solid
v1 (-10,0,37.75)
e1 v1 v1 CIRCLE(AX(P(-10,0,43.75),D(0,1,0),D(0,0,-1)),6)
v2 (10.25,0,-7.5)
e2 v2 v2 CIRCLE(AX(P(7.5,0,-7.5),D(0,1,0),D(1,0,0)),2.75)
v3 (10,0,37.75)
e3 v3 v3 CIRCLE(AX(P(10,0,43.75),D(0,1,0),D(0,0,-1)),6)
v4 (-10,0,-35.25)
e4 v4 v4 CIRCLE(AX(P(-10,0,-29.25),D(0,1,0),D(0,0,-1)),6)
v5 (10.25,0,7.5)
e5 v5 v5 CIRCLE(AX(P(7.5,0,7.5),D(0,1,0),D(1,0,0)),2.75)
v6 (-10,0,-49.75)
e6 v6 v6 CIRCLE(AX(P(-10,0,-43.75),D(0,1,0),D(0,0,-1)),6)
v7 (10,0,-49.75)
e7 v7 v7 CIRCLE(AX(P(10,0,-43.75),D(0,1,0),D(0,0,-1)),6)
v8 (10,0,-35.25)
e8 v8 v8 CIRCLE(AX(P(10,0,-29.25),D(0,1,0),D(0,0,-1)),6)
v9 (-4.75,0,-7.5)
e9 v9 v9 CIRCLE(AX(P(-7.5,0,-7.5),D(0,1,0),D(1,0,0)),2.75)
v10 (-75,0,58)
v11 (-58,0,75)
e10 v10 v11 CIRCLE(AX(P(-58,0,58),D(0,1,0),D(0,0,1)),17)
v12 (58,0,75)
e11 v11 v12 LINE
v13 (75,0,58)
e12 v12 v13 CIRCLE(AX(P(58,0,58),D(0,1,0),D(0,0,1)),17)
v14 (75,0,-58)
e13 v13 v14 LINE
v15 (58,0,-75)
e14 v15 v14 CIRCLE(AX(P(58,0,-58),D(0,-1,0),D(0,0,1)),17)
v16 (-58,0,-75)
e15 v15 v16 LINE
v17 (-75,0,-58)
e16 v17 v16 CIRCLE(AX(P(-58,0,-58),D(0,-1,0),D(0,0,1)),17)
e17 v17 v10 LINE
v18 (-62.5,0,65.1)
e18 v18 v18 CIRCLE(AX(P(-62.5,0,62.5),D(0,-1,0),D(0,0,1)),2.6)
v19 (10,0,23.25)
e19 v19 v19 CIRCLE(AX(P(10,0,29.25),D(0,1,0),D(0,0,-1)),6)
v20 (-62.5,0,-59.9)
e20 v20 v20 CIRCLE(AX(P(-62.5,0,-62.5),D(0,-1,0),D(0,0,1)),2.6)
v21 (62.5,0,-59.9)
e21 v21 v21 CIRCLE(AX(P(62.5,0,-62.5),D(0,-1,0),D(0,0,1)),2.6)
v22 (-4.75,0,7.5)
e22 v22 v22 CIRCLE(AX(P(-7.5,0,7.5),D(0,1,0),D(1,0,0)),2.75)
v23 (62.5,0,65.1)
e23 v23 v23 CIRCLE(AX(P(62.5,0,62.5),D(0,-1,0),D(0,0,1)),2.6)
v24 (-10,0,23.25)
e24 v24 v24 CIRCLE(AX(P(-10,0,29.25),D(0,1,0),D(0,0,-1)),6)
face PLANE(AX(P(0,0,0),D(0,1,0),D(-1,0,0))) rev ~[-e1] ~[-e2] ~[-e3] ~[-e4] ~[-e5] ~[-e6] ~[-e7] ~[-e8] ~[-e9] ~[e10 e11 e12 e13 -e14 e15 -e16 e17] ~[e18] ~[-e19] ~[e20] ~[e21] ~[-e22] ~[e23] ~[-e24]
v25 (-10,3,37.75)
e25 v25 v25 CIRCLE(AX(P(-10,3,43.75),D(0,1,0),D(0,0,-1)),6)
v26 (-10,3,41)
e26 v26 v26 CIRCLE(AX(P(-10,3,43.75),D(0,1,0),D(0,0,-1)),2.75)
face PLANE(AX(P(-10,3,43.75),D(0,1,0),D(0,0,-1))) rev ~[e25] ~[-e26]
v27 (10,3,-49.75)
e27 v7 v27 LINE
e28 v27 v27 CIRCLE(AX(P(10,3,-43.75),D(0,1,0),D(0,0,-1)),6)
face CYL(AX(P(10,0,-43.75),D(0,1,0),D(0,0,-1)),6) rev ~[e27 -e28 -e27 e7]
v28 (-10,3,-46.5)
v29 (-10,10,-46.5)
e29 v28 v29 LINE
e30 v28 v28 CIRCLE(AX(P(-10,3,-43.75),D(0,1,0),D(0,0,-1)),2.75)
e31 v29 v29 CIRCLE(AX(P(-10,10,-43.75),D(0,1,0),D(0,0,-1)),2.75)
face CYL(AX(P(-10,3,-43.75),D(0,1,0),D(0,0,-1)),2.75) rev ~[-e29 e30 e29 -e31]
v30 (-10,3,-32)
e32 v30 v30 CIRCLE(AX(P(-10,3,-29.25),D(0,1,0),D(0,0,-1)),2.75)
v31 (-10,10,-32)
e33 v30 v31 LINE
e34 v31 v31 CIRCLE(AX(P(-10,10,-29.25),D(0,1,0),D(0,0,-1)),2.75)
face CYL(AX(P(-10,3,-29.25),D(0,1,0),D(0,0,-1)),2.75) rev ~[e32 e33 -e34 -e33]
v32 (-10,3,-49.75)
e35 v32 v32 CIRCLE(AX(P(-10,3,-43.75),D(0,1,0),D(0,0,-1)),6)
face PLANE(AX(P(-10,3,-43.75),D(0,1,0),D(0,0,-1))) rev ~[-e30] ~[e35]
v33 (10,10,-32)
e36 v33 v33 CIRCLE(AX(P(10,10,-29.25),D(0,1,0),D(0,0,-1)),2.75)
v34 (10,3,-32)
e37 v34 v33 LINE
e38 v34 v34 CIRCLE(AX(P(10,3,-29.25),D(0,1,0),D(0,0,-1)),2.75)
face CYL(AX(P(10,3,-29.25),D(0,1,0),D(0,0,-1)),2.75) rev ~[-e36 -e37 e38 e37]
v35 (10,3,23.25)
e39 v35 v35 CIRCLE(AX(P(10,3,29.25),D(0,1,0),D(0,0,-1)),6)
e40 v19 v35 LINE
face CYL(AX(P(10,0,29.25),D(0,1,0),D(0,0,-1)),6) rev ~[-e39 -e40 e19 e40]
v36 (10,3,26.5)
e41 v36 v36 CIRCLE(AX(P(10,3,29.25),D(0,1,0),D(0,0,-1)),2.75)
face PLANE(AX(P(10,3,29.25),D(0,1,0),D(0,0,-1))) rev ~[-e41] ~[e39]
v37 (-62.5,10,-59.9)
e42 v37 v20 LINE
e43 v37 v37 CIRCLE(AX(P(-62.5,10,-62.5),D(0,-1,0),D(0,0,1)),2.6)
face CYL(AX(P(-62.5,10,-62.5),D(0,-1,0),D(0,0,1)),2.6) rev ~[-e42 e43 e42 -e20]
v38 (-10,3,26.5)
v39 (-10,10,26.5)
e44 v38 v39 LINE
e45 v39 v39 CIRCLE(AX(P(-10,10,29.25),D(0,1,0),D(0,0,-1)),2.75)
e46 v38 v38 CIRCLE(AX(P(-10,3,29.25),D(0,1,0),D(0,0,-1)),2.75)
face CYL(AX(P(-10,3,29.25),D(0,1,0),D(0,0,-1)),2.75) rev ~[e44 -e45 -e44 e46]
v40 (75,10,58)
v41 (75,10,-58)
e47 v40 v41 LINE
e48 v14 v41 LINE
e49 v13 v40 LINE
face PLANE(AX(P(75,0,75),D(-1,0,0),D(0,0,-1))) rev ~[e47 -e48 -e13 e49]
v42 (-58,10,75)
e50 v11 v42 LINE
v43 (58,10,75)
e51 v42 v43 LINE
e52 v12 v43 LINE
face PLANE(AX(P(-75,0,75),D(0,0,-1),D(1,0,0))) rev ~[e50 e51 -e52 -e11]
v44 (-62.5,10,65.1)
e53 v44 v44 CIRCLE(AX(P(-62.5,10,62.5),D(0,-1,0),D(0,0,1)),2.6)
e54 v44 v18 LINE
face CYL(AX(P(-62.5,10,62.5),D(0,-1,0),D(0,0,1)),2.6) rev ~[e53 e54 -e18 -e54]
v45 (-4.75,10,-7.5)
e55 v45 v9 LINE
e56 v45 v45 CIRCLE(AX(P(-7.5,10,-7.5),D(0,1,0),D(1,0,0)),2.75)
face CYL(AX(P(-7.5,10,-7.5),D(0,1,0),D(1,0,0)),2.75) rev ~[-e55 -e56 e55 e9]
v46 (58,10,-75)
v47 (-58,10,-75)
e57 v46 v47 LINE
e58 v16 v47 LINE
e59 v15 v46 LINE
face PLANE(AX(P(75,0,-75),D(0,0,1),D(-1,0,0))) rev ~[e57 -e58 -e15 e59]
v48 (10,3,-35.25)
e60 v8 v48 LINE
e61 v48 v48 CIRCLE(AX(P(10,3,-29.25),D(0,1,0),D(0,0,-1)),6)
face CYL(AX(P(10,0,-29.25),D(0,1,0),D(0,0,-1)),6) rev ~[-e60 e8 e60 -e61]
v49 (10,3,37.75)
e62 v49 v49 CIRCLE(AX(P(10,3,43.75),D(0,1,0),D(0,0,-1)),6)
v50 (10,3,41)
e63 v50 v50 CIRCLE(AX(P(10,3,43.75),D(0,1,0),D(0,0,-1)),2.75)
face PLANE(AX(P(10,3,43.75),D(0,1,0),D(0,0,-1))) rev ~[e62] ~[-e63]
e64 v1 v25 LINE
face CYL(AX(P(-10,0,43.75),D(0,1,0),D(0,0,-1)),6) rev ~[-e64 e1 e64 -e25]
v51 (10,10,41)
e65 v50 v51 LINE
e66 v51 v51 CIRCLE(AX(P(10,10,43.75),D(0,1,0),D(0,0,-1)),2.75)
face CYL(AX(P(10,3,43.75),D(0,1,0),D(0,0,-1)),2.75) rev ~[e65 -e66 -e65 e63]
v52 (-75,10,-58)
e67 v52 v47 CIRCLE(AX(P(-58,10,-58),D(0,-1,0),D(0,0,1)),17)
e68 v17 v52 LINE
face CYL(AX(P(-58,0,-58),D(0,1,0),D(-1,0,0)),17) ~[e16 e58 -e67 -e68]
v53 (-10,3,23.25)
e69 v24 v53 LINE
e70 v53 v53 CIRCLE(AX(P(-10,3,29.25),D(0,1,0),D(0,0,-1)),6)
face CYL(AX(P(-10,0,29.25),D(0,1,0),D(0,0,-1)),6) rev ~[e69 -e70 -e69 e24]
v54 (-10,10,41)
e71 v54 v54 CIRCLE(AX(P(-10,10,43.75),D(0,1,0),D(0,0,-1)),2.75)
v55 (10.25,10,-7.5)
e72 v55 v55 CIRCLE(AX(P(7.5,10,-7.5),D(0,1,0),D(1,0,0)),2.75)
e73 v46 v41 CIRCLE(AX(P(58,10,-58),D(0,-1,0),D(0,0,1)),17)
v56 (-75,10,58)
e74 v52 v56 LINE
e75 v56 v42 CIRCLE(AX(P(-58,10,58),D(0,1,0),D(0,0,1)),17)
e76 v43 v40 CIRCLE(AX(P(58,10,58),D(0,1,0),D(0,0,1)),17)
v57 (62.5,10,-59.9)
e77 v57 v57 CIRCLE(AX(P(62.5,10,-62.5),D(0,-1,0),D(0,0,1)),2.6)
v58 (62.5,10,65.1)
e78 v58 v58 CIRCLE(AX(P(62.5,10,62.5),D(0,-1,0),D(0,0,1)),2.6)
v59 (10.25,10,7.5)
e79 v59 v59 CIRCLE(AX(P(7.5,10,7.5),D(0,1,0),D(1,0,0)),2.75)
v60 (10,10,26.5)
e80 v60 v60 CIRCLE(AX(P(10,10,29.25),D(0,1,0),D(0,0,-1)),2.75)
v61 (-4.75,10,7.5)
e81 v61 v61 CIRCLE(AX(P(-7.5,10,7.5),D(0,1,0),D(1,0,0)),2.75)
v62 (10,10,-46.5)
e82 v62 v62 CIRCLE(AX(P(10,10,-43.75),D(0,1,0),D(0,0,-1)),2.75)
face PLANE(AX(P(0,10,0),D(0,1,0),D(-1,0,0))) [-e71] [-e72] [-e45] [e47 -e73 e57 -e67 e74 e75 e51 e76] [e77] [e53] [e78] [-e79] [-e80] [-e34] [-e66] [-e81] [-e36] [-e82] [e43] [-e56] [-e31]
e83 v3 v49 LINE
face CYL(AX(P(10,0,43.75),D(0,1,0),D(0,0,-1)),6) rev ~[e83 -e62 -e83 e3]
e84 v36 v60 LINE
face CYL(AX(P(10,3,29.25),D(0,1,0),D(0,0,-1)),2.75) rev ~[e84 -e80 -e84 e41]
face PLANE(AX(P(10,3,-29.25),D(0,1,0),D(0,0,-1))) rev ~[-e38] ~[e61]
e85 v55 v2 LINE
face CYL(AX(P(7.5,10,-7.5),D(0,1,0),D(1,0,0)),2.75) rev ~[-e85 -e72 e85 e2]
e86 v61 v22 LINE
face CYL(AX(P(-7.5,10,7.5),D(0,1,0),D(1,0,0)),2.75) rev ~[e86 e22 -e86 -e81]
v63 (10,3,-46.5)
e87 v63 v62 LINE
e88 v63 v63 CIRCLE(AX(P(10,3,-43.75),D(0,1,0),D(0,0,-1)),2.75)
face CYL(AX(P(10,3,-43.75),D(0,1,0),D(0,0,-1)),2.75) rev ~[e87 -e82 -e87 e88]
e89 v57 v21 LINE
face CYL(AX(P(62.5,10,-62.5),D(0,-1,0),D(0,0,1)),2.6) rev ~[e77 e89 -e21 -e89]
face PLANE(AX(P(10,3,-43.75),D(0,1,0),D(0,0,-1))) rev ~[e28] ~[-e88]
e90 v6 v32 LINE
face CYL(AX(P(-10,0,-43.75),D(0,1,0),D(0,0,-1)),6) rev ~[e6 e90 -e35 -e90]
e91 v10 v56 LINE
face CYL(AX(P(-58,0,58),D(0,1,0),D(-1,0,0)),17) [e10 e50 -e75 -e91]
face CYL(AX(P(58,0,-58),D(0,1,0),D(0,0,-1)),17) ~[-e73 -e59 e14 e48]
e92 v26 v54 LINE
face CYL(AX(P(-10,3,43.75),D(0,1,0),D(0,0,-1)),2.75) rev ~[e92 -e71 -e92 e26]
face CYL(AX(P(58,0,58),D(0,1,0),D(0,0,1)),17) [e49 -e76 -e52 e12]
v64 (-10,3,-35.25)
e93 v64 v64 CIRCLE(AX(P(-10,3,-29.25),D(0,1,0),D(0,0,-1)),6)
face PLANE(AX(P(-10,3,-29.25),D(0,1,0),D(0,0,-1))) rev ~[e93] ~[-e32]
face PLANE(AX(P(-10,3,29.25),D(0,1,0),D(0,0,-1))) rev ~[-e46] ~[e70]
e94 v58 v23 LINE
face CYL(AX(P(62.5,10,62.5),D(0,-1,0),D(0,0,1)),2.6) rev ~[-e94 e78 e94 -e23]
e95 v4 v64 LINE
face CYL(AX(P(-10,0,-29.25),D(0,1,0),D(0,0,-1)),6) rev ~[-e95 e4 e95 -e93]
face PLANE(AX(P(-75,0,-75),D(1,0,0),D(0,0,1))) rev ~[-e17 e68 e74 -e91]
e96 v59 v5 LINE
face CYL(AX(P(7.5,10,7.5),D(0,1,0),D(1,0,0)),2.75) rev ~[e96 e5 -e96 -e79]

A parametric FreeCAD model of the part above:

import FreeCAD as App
import Part
import Sketcher

V = App.Vector


def edges_at(feature, points):
    """Names of the edges that pass closest to the given points."""
    edges = feature.Shape.Edges
    near = lambda p: min(range(len(edges)), key=lambda i: edges[i].distToShape(Part.Vertex(*p))[0])
    return sorted({f"Edge{near(p) + 1}" for p in points})

doc = App.newDocument("Part")
params = doc.addObject("Spreadsheet::Sheet", "Params")
for row, (alias, value) in enumerate([
    ("sketch1_width", "150 mm"),
    ("pad1_length", "10 mm"),
    ("sketch2_diameter", "5 mm"),
    ("fillet_radius", "17 mm"),
    ("sketch3_diameter", "5.5 mm"),
    ("hole_diameter", "5.5 mm"),
    ("hole_cbore_diameter", "12 mm"),
    ("hole_cbore_depth", "3 mm"),
    ("sketch4_diameter", "5.2 mm"),
    ("hole2_diameter", "5.2 mm"),
    ("sketch5_diameter", "5.5 mm"),
], start=1):
    params.set(f"A{row}", alias)
    params.set(f"B{row}", "=" + value)
    params.setAlias(f"B{row}", alias)

body = doc.addObject("PartDesign::Body", "Body")

# Sketch on XZ plane
sketch1 = body.newObject("Sketcher::SketchObject", "Sketch")
sketch1.AttachmentSupport = (doc.getObject("XZ_Plane"), [""])
sketch1.MapMode = "FlatFace"
sketch1.addGeometry(Part.LineSegment(V(-75, -75, 0), V(-75, 75, 0)), False)
sketch1.addGeometry(Part.LineSegment(V(-75, 75, 0), V(75, 75, 0)), False)
sketch1.addGeometry(Part.LineSegment(V(75, 75, 0), V(75, -75, 0)), False)
sketch1.addGeometry(Part.LineSegment(V(75, -75, 0), V(-75, -75, 0)), False)
sketch1.addConstraint(Sketcher.Constraint("Coincident", 0, 2, 1, 1))
sketch1.addConstraint(Sketcher.Constraint("Coincident", 1, 2, 2, 1))
sketch1.addConstraint(Sketcher.Constraint("Coincident", 2, 2, 3, 1))
sketch1.addConstraint(Sketcher.Constraint("Coincident", 3, 2, 0, 1))
sketch1.addConstraint(Sketcher.Constraint("Vertical", 0))
sketch1.addConstraint(Sketcher.Constraint("Horizontal", 1))
sketch1.addConstraint(Sketcher.Constraint("Vertical", 2))
sketch1.addConstraint(Sketcher.Constraint("Horizontal", 3))
sketch1.addConstraint(Sketcher.Constraint("Symmetric", 0, 2, 2, 2, -1, 1))
sketch1.addConstraint(Sketcher.Constraint("Equal", 3, 0))
sketch1.addConstraint(Sketcher.Constraint("DistanceX", 1, 1, 1, 2, 150.0))
sketch1.setExpression("Constraints[10]", "Params.sketch1_width")
pad1 = body.newObject("PartDesign::Pad", "Pad")
pad1.Profile = sketch1
pad1.setExpression("Length", "Params.pad1_length")
pad1.Reversed = True

# Sketch on XZ plane
sketch2 = body.newObject("Sketcher::SketchObject", "Sketch001")
sketch2.AttachmentSupport = (doc.getObject("XZ_Plane"), [""])
sketch2.MapMode = "FlatFace"
sketch2.AttachmentOffset = App.Placement(V(0, 0, -10), App.Rotation())
sketch2.addGeometry(Part.Circle(V(-10, -43.8, 0), V(0, 0, 1), 2.5), False)
sketch2.addGeometry(Part.Circle(V(10, -43.8, 0), V(0, 0, 1), 2.5), False)
sketch2.addGeometry(Part.Circle(V(-10, -29.2, 0), V(0, 0, 1), 2.5), False)
sketch2.addGeometry(Part.Circle(V(10, -29.2, 0), V(0, 0, 1), 2.5), False)
sketch2.addGeometry(Part.Circle(V(-10, 29.2, 0), V(0, 0, 1), 2.5), False)
sketch2.addGeometry(Part.Circle(V(10, 29.2, 0), V(0, 0, 1), 2.5), False)
sketch2.addGeometry(Part.Circle(V(-10, 43.8, 0), V(0, 0, 1), 2.5), False)
sketch2.addGeometry(Part.Circle(V(10, 43.8, 0), V(0, 0, 1), 2.5), False)
sketch2.addConstraint(Sketcher.Constraint("Equal", 0, 1))
sketch2.addConstraint(Sketcher.Constraint("Equal", 1, 2))
sketch2.addConstraint(Sketcher.Constraint("Equal", 2, 3))
sketch2.addConstraint(Sketcher.Constraint("Equal", 3, 4))
sketch2.addConstraint(Sketcher.Constraint("Equal", 4, 5))
sketch2.addConstraint(Sketcher.Constraint("Equal", 5, 6))
sketch2.addConstraint(Sketcher.Constraint("Equal", 6, 7))
sketch2.addConstraint(Sketcher.Constraint("Symmetric", 3, 3, 4, 3, -1, 1))
sketch2.addConstraint(Sketcher.Constraint("Symmetric", 2, 3, 5, 3, -1, 1))
sketch2.addConstraint(Sketcher.Constraint("Symmetric", 1, 3, 6, 3, -1, 1))
sketch2.addConstraint(Sketcher.Constraint("Symmetric", 0, 3, 7, 3, -1, 1))
sketch2.addConstraint(Sketcher.Constraint("Symmetric", 0, 3, 1, 3, -2))
sketch2.addConstraint(Sketcher.Constraint("Symmetric", 2, 3, 3, 3, -2))
sketch2.addConstraint(Sketcher.Constraint("Vertical", 0, 3, 2, 3))
sketch2.addConstraint(Sketcher.Constraint("Diameter", 0, 5.0))
sketch2.addConstraint(Sketcher.Constraint("DistanceX", 0, 3, 1, 3, 20.0))
sketch2.addConstraint(Sketcher.Constraint("DistanceY", 2, 3, 4, 3, 58.5))
sketch2.addConstraint(Sketcher.Constraint("DistanceY", 0, 3, 6, 3, 87.5))
sketch2.setExpression("Constraints[14]", "Params.sketch2_diameter")
pocket1 = body.newObject("PartDesign::Pocket", "Pocket")
pocket1.Profile = sketch2
pocket1.Type = "ThroughAll"
pocket1.Reversed = True
doc.recompute()

fillet = body.newObject("PartDesign::Fillet", "Fillet")
fillet.Base = (pocket1, edges_at(pocket1, [
    (75, 5, 75),
    (-75, 5, 75),
    (75, 5, -75),
    (-75, 5, -75),
]))
fillet.setExpression("Radius", "Params.fillet_radius")

# Sketch on XZ plane
sketch3 = body.newObject("Sketcher::SketchObject", "Sketch002")
sketch3.AttachmentSupport = (doc.getObject("XZ_Plane"), [""])
sketch3.MapMode = "FlatFace"
sketch3.addGeometry(Part.Circle(V(-10, 43.8, 0), V(0, 0, 1), 2.8), False)
sketch3.addGeometry(Part.Circle(V(10, 43.8, 0), V(0, 0, 1), 2.8), False)
sketch3.addGeometry(Part.Circle(V(-10, 29.2, 0), V(0, 0, 1), 2.8), False)
sketch3.addGeometry(Part.Circle(V(10, 29.2, 0), V(0, 0, 1), 2.8), False)
sketch3.addGeometry(Part.Circle(V(-10, -29.2, 0), V(0, 0, 1), 2.8), False)
sketch3.addGeometry(Part.Circle(V(10, -29.2, 0), V(0, 0, 1), 2.8), False)
sketch3.addGeometry(Part.Circle(V(-10, -43.8, 0), V(0, 0, 1), 2.8), False)
sketch3.addGeometry(Part.Circle(V(10, -43.8, 0), V(0, 0, 1), 2.8), False)
sketch3.addConstraint(Sketcher.Constraint("Equal", 0, 1))
sketch3.addConstraint(Sketcher.Constraint("Equal", 1, 2))
sketch3.addConstraint(Sketcher.Constraint("Equal", 2, 3))
sketch3.addConstraint(Sketcher.Constraint("Equal", 3, 4))
sketch3.addConstraint(Sketcher.Constraint("Equal", 4, 5))
sketch3.addConstraint(Sketcher.Constraint("Equal", 5, 6))
sketch3.addConstraint(Sketcher.Constraint("Equal", 6, 7))
sketch3.addConstraint(Sketcher.Constraint("Symmetric", 3, 3, 4, 3, -1, 1))
sketch3.addConstraint(Sketcher.Constraint("Symmetric", 2, 3, 5, 3, -1, 1))
sketch3.addConstraint(Sketcher.Constraint("Symmetric", 1, 3, 6, 3, -1, 1))
sketch3.addConstraint(Sketcher.Constraint("Symmetric", 0, 3, 7, 3, -1, 1))
sketch3.addConstraint(Sketcher.Constraint("Symmetric", 0, 3, 1, 3, -2))
sketch3.addConstraint(Sketcher.Constraint("Symmetric", 2, 3, 3, 3, -2))
sketch3.addConstraint(Sketcher.Constraint("Vertical", 0, 3, 2, 3))
sketch3.addConstraint(Sketcher.Constraint("Diameter", 0, 5.5))
sketch3.addConstraint(Sketcher.Constraint("DistanceX", 0, 3, -1, 1, 10.0))
sketch3.addConstraint(Sketcher.Constraint("DistanceY", 4, 3, 0, 3, 73.0))
sketch3.addConstraint(Sketcher.Constraint("DistanceY", 2, 3, 0, 3, 14.5))
sketch3.setExpression("Constraints[14]", "Params.sketch3_diameter")
doc.recompute()
hole = body.newObject("PartDesign::Hole", "Hole")
hole.Profile = sketch3
hole.ThreadType = "None"
hole.setExpression("Diameter", "Params.hole_diameter")
hole.DepthType = "ThroughAll"
hole.HoleCutType = "Counterbore"
hole.setExpression("HoleCutDiameter", "Params.hole_cbore_diameter")
hole.setExpression("HoleCutDepth", "Params.hole_cbore_depth")

# Sketch on XZ plane
sketch4 = body.newObject("Sketcher::SketchObject", "Sketch003")
sketch4.AttachmentSupport = (doc.getObject("XZ_Plane"), [""])
sketch4.MapMode = "FlatFace"
sketch4.AttachmentOffset = App.Placement(V(0, 0, -10), App.Rotation())
sketch4.addGeometry(Part.Circle(V(62.5, -62.5, 0), V(0, 0, 1), 2.6), False)
sketch4.addGeometry(Part.Circle(V(62.5, 62.5, 0), V(0, 0, 1), 2.6), False)
sketch4.addGeometry(Part.Circle(V(-62.5, -62.5, 0), V(0, 0, 1), 2.6), False)
sketch4.addGeometry(Part.Circle(V(-62.5, 62.5, 0), V(0, 0, 1), 2.6), False)
sketch4.addConstraint(Sketcher.Constraint("Equal", 0, 1))
sketch4.addConstraint(Sketcher.Constraint("Equal", 1, 2))
sketch4.addConstraint(Sketcher.Constraint("Equal", 2, 3))
sketch4.addConstraint(Sketcher.Constraint("Symmetric", 1, 3, 2, 3, -1, 1))
sketch4.addConstraint(Sketcher.Constraint("Symmetric", 0, 3, 3, 3, -1, 1))
sketch4.addConstraint(Sketcher.Constraint("Symmetric", 0, 3, 2, 3, -2))
sketch4.addConstraint(Sketcher.Constraint("Diameter", 0, 5.2))
sketch4.addConstraint(Sketcher.Constraint("DistanceY", 0, 3, 1, 3, 125.0))
sketch4.addConstraint(Sketcher.Constraint("DistanceX", 2, 3, 0, 3, 125.0))
sketch4.setExpression("Constraints[6]", "Params.sketch4_diameter")
doc.recompute()
hole2 = body.newObject("PartDesign::Hole", "Hole001")
hole2.Profile = sketch4
hole2.ThreadType = "None"
hole2.setExpression("Diameter", "Params.hole2_diameter")
hole2.DepthType = "ThroughAll"
hole2.Reversed = True

# Sketch on XZ plane
sketch5 = body.newObject("Sketcher::SketchObject", "Sketch004")
sketch5.AttachmentSupport = (doc.getObject("XZ_Plane"), [""])
sketch5.MapMode = "FlatFace"
sketch5.AttachmentOffset = App.Placement(V(0, 0, -10), App.Rotation())
sketch5.addGeometry(Part.Circle(V(7.5, 7.5, 0), V(0, 0, 1), 2.8), False)
sketch5.addGeometry(Part.Circle(V(-7.5, 7.5, 0), V(0, 0, 1), 2.8), False)
sketch5.addGeometry(Part.Circle(V(7.5, -7.5, 0), V(0, 0, 1), 2.8), False)
sketch5.addGeometry(Part.Circle(V(-7.5, -7.5, 0), V(0, 0, 1), 2.8), False)
sketch5.addConstraint(Sketcher.Constraint("Equal", 0, 1))
sketch5.addConstraint(Sketcher.Constraint("Equal", 1, 2))
sketch5.addConstraint(Sketcher.Constraint("Equal", 2, 3))
sketch5.addConstraint(Sketcher.Constraint("Symmetric", 1, 3, 2, 3, -1, 1))
sketch5.addConstraint(Sketcher.Constraint("Symmetric", 0, 3, 3, 3, -1, 1))
sketch5.addConstraint(Sketcher.Constraint("Symmetric", 0, 3, 1, 3, -2))
sketch5.addConstraint(Sketcher.Constraint("Diameter", 0, 5.5))
sketch5.addConstraint(Sketcher.Constraint("DistanceX", 1, 3, 0, 3, 15.0))
sketch5.addConstraint(Sketcher.Constraint("DistanceY", 2, 3, 0, 3, 15.0))
sketch5.setExpression("Constraints[6]", "Params.sketch5_diameter")
pocket2 = body.newObject("PartDesign::Pocket", "Pocket001")
pocket2.Profile = sketch5
pocket2.Type = "ThroughAll"
pocket2.Reversed = True

doc.recompute()
